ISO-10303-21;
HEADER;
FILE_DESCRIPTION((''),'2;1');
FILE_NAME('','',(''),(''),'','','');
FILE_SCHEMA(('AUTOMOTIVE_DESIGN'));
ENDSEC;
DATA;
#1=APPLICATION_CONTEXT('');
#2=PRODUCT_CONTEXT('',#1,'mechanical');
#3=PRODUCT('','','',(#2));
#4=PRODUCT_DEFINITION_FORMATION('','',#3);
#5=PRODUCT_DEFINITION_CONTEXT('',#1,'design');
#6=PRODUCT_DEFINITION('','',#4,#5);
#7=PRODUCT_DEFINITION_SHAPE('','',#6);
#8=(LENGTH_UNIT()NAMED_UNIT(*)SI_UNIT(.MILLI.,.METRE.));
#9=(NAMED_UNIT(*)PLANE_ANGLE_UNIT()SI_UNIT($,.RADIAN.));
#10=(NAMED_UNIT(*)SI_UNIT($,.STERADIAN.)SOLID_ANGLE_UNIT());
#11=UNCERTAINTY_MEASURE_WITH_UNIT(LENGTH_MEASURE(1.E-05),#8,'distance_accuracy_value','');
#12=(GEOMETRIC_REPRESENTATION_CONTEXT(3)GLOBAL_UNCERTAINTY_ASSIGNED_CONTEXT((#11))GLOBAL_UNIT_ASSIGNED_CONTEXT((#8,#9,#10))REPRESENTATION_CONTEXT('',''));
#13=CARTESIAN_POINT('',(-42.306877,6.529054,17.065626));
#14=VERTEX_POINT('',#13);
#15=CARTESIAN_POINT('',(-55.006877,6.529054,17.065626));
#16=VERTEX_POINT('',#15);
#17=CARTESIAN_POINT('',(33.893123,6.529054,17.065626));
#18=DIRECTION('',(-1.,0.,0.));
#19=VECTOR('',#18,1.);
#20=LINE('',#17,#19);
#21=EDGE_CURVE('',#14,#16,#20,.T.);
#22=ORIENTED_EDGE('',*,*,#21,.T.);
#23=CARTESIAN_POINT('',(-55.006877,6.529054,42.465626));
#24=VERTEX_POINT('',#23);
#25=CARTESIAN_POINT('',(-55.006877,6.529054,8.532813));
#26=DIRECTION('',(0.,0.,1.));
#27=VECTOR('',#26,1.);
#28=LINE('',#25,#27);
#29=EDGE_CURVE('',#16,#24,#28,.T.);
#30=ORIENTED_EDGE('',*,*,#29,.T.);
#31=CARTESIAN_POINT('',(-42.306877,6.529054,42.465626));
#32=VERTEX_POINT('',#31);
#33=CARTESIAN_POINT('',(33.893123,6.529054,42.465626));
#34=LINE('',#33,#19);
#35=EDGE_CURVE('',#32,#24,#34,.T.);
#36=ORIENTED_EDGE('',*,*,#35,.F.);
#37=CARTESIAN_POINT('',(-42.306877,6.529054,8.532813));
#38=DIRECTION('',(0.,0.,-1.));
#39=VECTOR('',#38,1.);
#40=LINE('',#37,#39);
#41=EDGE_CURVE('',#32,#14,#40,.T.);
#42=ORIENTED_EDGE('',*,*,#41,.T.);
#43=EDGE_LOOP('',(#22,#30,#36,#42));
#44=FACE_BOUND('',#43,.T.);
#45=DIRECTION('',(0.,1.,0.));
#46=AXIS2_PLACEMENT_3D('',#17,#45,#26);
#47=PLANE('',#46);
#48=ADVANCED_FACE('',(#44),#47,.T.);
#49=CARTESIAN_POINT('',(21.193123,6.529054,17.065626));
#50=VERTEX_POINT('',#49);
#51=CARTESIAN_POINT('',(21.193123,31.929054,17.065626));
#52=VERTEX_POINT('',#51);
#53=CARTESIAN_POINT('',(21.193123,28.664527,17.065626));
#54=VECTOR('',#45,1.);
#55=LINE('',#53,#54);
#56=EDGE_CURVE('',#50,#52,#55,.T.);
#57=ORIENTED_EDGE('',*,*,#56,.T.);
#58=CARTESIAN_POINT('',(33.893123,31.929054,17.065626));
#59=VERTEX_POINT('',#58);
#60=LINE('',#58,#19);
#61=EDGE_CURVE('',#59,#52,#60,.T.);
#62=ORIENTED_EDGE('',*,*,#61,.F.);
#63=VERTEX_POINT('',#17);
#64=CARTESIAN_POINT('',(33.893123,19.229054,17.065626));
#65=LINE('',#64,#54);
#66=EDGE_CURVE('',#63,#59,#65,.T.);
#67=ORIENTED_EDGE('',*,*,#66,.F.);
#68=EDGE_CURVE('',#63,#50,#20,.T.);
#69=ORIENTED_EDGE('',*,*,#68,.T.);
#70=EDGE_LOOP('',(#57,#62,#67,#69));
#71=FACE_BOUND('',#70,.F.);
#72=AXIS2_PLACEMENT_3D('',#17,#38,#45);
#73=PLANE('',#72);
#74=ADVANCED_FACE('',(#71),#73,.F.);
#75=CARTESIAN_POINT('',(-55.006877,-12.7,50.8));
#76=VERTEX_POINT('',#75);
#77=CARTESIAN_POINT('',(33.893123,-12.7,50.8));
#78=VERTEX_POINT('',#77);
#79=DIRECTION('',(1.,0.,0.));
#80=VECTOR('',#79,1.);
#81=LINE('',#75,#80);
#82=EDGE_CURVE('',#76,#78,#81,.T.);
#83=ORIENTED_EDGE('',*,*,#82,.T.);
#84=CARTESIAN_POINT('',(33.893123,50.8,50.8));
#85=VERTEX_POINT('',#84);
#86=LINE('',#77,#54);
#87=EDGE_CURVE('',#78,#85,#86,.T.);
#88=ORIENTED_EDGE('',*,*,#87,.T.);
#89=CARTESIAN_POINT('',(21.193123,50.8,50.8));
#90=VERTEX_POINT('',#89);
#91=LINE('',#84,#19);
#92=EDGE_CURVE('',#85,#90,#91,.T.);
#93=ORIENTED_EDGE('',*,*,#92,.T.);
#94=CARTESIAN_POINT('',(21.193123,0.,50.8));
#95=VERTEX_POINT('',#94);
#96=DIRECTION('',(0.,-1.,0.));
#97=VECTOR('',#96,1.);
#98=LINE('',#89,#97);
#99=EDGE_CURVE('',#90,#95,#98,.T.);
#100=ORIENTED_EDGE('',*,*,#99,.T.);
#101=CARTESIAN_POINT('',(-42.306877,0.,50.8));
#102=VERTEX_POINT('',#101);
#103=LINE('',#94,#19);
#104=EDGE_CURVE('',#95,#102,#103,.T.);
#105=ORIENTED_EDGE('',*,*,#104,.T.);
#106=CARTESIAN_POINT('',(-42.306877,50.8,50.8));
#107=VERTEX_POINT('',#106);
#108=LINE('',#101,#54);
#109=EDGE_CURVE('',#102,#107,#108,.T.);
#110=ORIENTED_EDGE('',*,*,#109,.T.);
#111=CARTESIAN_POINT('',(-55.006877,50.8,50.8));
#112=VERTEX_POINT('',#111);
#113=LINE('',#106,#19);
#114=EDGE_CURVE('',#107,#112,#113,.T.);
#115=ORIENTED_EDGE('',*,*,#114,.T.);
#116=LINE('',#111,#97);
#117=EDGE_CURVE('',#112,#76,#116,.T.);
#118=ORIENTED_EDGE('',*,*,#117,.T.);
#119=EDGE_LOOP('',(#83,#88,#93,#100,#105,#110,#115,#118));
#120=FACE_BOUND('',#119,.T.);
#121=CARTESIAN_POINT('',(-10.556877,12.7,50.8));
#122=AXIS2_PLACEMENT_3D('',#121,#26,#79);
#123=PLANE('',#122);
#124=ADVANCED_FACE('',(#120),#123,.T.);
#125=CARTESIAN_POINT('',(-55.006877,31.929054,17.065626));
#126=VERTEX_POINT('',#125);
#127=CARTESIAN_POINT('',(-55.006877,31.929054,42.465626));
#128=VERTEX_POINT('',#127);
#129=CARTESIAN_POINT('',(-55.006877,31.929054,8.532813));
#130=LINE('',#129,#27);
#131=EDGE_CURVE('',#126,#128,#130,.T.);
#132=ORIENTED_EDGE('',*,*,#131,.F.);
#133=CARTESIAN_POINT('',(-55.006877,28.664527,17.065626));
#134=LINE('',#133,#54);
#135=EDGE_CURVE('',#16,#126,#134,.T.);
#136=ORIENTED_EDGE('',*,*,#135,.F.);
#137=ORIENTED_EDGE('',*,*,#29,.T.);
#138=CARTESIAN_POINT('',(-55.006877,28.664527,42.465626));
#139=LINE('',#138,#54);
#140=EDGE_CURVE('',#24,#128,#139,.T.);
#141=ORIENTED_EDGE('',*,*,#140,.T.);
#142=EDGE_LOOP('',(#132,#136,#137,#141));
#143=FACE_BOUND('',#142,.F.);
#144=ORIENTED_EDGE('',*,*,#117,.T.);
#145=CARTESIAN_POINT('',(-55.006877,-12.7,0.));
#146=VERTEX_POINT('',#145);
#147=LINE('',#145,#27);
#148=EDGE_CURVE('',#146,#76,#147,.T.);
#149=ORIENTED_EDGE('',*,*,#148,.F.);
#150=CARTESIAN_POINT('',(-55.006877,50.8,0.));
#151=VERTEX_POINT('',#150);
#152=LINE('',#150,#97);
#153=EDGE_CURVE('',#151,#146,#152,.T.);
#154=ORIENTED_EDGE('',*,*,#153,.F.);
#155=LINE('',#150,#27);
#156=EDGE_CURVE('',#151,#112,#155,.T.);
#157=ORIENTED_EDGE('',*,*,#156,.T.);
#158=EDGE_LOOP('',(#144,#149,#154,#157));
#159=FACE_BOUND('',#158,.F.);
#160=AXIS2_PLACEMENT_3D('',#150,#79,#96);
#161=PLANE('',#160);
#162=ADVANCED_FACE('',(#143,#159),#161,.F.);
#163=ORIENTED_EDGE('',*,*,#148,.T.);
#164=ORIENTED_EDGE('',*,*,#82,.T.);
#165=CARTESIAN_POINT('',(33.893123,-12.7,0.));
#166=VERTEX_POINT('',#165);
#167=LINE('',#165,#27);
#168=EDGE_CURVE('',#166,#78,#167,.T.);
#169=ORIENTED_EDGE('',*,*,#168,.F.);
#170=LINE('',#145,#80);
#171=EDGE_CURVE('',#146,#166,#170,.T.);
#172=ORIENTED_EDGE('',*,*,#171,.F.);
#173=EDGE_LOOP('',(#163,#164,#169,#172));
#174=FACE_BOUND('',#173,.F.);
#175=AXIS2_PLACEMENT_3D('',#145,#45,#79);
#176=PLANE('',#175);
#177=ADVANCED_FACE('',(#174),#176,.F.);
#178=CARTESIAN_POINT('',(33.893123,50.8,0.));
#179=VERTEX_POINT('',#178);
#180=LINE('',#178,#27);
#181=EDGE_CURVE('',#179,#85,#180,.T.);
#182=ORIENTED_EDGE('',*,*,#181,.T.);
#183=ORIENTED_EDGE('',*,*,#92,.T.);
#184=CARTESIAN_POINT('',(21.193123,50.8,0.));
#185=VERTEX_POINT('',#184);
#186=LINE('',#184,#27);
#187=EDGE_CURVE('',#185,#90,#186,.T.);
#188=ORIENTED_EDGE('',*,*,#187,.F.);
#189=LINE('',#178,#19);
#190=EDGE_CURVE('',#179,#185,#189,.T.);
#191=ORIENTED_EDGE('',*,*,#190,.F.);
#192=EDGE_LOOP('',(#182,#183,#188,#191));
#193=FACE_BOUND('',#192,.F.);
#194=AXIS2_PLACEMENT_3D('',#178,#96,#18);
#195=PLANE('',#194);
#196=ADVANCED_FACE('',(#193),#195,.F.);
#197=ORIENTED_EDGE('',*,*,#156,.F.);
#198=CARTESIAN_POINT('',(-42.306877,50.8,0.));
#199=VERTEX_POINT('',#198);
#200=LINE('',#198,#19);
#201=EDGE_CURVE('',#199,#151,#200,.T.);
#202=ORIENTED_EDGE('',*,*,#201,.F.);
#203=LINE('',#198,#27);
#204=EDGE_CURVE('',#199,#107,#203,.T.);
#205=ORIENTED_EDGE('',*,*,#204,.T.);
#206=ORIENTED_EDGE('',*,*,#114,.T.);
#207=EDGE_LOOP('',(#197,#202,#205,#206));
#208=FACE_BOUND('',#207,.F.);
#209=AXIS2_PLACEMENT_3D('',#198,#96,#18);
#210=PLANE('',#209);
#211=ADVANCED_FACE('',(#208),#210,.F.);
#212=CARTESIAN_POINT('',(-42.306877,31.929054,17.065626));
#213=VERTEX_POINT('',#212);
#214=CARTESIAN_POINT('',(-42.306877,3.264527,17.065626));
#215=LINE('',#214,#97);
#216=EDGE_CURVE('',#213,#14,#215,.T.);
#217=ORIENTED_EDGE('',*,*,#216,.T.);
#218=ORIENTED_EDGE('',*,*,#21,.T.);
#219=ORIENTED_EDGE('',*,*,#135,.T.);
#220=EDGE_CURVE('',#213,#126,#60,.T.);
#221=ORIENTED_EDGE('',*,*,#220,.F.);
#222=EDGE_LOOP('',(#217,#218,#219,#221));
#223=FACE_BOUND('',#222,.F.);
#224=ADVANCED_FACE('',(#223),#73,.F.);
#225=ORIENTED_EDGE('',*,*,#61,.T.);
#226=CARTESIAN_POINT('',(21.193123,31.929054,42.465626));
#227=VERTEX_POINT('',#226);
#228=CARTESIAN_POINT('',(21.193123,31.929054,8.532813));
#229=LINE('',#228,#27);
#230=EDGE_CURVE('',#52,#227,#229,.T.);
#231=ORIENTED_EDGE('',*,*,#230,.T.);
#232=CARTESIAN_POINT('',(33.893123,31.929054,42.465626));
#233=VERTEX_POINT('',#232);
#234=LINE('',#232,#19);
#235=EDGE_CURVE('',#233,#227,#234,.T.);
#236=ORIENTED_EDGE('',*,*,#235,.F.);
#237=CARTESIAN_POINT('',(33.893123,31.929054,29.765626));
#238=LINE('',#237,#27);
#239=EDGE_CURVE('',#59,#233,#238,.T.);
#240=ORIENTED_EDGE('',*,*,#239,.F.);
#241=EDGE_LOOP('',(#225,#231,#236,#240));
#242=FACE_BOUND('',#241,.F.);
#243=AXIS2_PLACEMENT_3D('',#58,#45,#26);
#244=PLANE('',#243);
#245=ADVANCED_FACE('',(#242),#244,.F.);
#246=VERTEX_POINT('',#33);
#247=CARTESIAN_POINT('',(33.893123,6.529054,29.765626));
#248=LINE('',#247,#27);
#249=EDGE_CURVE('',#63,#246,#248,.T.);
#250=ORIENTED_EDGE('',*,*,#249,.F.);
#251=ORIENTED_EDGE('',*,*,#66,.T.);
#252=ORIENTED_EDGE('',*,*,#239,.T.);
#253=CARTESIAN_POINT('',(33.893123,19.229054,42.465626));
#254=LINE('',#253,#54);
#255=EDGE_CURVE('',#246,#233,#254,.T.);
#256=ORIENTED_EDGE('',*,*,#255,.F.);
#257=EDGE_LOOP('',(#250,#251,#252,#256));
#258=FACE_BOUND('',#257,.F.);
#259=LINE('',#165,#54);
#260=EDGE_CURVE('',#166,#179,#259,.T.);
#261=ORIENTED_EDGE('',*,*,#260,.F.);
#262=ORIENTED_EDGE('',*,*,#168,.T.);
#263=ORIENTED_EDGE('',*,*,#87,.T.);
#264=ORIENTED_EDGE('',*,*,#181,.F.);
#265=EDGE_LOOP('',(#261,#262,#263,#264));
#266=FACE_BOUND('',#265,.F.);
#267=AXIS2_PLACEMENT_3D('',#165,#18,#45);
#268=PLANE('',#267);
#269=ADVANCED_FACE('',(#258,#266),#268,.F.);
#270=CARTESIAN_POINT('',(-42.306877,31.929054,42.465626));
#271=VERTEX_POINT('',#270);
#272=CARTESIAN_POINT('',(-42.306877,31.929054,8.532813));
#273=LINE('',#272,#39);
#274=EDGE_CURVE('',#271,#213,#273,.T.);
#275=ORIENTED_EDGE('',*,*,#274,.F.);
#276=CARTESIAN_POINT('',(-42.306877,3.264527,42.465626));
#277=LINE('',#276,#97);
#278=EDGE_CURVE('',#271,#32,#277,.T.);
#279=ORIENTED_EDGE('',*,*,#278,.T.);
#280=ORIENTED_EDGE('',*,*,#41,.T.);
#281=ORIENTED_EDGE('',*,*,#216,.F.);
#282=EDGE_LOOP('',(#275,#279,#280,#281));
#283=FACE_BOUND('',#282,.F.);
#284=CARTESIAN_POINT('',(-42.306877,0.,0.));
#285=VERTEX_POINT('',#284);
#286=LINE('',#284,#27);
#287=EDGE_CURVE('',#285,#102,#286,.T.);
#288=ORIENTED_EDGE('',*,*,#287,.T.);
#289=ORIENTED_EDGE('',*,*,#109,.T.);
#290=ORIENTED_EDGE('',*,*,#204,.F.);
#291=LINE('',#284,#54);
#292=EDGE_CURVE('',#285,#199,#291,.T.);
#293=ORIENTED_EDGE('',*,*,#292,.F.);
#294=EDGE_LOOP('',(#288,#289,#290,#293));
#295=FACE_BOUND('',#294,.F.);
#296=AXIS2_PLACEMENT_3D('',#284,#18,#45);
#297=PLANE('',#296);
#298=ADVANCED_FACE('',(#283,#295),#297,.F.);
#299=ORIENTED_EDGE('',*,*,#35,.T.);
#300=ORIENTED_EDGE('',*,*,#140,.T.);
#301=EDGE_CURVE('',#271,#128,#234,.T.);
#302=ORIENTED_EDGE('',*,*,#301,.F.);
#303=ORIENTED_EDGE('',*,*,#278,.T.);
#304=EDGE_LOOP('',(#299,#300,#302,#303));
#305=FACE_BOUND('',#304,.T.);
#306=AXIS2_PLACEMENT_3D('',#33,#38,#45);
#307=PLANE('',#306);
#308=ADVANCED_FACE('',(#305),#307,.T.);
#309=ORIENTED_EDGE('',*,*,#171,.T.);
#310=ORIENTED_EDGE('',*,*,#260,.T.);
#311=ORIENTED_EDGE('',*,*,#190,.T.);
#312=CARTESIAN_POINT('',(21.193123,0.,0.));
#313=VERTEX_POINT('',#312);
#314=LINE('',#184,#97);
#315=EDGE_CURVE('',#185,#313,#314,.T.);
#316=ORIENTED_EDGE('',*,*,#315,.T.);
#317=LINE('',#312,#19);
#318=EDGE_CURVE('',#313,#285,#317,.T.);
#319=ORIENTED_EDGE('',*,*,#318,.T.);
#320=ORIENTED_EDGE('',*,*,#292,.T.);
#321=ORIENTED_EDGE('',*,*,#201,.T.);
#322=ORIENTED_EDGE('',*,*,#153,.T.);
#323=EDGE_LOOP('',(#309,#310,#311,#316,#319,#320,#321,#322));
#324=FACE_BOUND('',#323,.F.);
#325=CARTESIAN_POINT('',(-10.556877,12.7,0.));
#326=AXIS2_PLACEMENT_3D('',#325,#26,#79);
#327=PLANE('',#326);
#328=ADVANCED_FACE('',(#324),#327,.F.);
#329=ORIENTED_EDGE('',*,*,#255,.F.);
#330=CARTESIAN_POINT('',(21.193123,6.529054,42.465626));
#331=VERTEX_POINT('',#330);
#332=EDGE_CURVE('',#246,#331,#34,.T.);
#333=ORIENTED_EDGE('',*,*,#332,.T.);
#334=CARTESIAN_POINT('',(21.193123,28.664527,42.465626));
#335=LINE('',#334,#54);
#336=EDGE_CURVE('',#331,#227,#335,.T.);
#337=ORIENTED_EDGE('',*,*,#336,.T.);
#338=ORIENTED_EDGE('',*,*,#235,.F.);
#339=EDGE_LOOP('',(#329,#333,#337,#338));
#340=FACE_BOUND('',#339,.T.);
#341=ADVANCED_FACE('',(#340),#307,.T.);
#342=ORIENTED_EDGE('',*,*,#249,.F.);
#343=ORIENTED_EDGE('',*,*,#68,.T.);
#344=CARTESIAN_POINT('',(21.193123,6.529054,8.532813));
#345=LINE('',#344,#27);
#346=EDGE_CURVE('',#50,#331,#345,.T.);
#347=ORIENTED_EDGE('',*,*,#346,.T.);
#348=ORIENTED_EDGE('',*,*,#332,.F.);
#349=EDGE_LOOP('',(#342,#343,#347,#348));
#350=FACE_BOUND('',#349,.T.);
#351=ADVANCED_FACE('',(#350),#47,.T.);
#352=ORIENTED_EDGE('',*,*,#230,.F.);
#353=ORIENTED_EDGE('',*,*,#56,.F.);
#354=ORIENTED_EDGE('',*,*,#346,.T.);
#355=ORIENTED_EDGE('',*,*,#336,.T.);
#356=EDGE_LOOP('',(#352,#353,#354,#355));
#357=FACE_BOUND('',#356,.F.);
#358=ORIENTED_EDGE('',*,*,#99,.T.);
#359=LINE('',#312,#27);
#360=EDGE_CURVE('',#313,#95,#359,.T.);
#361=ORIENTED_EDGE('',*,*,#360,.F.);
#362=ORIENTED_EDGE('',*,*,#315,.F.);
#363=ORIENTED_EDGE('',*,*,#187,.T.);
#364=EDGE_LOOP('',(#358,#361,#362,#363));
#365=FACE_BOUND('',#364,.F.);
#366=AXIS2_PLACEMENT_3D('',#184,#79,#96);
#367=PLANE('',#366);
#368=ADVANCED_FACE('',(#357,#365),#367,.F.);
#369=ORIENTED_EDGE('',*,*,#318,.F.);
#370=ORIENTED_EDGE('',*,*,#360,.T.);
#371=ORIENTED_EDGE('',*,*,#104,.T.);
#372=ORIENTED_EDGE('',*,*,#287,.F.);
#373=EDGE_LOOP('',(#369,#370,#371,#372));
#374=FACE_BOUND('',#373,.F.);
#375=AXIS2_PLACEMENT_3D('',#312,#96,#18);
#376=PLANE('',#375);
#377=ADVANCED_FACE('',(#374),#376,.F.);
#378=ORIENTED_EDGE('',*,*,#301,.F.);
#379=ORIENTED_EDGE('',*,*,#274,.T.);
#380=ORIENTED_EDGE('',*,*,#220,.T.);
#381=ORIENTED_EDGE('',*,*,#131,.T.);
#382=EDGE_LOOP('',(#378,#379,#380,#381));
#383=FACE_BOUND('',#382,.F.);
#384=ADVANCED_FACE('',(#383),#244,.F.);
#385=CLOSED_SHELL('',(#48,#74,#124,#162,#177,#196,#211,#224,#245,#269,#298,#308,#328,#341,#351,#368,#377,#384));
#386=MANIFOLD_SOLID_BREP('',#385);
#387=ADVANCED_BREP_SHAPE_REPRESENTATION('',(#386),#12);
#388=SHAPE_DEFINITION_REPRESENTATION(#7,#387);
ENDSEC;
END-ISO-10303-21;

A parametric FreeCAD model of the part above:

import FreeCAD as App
import Part
import Sketcher
from FreeCAD import Vector
Q = App.Units.Quantity

doc = App.newDocument("Part")
body = doc.addObject("PartDesign::Body", "Body")

# Sketch on XY plane
sketch1 = body.newObject("Sketcher::SketchObject", "Sketch")
sketch1.AttachmentSupport = (doc.getObject("XY_Plane"), [""])
sketch1.MapMode = "FlatFace"
sketch1.addGeometry(Part.LineSegment(Vector(-55.006877, 50.8, 0), Vector(-55.006877, -12.7, 0)), False)
sketch1.addGeometry(Part.LineSegment(Vector(-55.006877, -12.7, 0), Vector(33.893123, -12.7, 0)), False)
sketch1.addGeometry(Part.LineSegment(Vector(33.893123, -12.7, 0), Vector(33.893123, 50.8, 0)), False)
sketch1.addGeometry(Part.LineSegment(Vector(33.893123, 50.8, 0), Vector(21.193123, 50.8, 0)), False)
sketch1.addGeometry(Part.LineSegment(Vector(21.193123, 50.8, 0), Vector(21.193123, 0, 0)), False)
sketch1.addGeometry(Part.LineSegment(Vector(21.193123, 0, 0), Vector(-42.306877, 0, 0)), False)
sketch1.addGeometry(Part.LineSegment(Vector(-42.306877, 0, 0), Vector(-42.306877, 50.8, 0)), False)
sketch1.addGeometry(Part.LineSegment(Vector(-42.306877, 50.8, 0), Vector(-55.006877, 50.8, 0)), False)
sketch1.addConstraint(Sketcher.Constraint("Coincident", 0, 2, 1, 1))
sketch1.addConstraint(Sketcher.Constraint("Coincident", 1, 2, 2, 1))
sketch1.addConstraint(Sketcher.Constraint("Coincident", 2, 2, 3, 1))
sketch1.addConstraint(Sketcher.Constraint("Coincident", 3, 2, 4, 1))
sketch1.addConstraint(Sketcher.Constraint("Coincident", 4, 2, 5, 1))
sketch1.addConstraint(Sketcher.Constraint("Coincident", 5, 2, 6, 1))
sketch1.addConstraint(Sketcher.Constraint("Coincident", 6, 2, 7, 1))
sketch1.addConstraint(Sketcher.Constraint("Coincident", 7, 2, 0, 1))
sketch1.addConstraint(Sketcher.Constraint("Vertical", 0))
sketch1.addConstraint(Sketcher.Constraint("Horizontal", 1))
sketch1.addConstraint(Sketcher.Constraint("Vertical", 2))
sketch1.addConstraint(Sketcher.Constraint("Horizontal", 3))
sketch1.addConstraint(Sketcher.Constraint("Vertical", 4))
sketch1.addConstraint(Sketcher.Constraint("Horizontal", 5))
sketch1.addConstraint(Sketcher.Constraint("Vertical", 6))
sketch1.addConstraint(Sketcher.Constraint("Horizontal", 7))
sketch1.addConstraint(Sketcher.Constraint("PointOnObject", 4, 2, -1))
sketch1.addConstraint(Sketcher.Constraint("Horizontal", 3, 2, 6, 2))
sketch1.addConstraint(Sketcher.Constraint("Equal", 3, 7))
sketch1.addConstraint(Sketcher.Constraint("Equal", 5, 0))
sketch1.addConstraint(Sketcher.Constraint("DistanceY", 4, 2, 4, 1, Q("2 in")))
sketch1.addConstraint(Sketcher.Constraint("DistanceX", 1, 1, 1, 2, Q("3.5 in")))
sketch1.addConstraint(Sketcher.Constraint("DistanceX", 3, 2, 3, 1, Q("0.5 in")))
sketch1.addConstraint(Sketcher.Constraint("DistanceX", 0, 2, -1, 1, 55.006877))
pad1 = body.newObject("PartDesign::Pad", "Pad")
pad1.Profile = sketch1
pad1.Length = Q("2 in")

# Sketch on YZ plane
sketch2 = body.newObject("Sketcher::SketchObject", "Sketch001")
sketch2.AttachmentSupport = (doc.getObject("YZ_Plane"), [""])
sketch2.MapMode = "FlatFace"
sketch2.AttachmentOffset = App.Placement(Vector(0, 0, 33.893123), App.Rotation())
sketch2.addGeometry(Part.LineSegment(Vector(6.529054, 42.465626, 0), Vector(6.529054, 17.065626, 0)), False)
sketch2.addGeometry(Part.LineSegment(Vector(6.529054, 17.065626, 0), Vector(31.929054, 17.065626, 0)), False)
sketch2.addGeometry(Part.LineSegment(Vector(31.929054, 17.065626, 0), Vector(31.929054, 42.465626, 0)), False)
sketch2.addGeometry(Part.LineSegment(Vector(31.929054, 42.465626, 0), Vector(6.529054, 42.465626, 0)), False)
sketch2.addConstraint(Sketcher.Constraint("Coincident", 0, 2, 1, 1))
sketch2.addConstraint(Sketcher.Constraint("Coincident", 1, 2, 2, 1))
sketch2.addConstraint(Sketcher.Constraint("Coincident", 2, 2, 3, 1))
sketch2.addConstraint(Sketcher.Constraint("Coincident", 3, 2, 0, 1))
sketch2.addConstraint(Sketcher.Constraint("Vertical", 0))
sketch2.addConstraint(Sketcher.Constraint("Horizontal", 1))
sketch2.addConstraint(Sketcher.Constraint("Vertical", 2))
sketch2.addConstraint(Sketcher.Constraint("Horizontal", 3))
sketch2.addConstraint(Sketcher.Constraint("Equal", 3, 0))
sketch2.addConstraint(Sketcher.Constraint("DistanceX", 1, 1, 1, 2, Q("1 in")))
sketch2.addConstraint(Sketcher.Constraint("DistanceY", -1, 1, 0, 2, Q("0.671875 in")))
sketch2.addConstraint(Sketcher.Constraint("DistanceX", -1, 1, 0, 2, 6.529054))
pocket1 = body.newObject("PartDesign::Pocket", "Pocket")
pocket1.Profile = sketch2
pocket1.Length = Q("4.12 in")

doc.recompute()
